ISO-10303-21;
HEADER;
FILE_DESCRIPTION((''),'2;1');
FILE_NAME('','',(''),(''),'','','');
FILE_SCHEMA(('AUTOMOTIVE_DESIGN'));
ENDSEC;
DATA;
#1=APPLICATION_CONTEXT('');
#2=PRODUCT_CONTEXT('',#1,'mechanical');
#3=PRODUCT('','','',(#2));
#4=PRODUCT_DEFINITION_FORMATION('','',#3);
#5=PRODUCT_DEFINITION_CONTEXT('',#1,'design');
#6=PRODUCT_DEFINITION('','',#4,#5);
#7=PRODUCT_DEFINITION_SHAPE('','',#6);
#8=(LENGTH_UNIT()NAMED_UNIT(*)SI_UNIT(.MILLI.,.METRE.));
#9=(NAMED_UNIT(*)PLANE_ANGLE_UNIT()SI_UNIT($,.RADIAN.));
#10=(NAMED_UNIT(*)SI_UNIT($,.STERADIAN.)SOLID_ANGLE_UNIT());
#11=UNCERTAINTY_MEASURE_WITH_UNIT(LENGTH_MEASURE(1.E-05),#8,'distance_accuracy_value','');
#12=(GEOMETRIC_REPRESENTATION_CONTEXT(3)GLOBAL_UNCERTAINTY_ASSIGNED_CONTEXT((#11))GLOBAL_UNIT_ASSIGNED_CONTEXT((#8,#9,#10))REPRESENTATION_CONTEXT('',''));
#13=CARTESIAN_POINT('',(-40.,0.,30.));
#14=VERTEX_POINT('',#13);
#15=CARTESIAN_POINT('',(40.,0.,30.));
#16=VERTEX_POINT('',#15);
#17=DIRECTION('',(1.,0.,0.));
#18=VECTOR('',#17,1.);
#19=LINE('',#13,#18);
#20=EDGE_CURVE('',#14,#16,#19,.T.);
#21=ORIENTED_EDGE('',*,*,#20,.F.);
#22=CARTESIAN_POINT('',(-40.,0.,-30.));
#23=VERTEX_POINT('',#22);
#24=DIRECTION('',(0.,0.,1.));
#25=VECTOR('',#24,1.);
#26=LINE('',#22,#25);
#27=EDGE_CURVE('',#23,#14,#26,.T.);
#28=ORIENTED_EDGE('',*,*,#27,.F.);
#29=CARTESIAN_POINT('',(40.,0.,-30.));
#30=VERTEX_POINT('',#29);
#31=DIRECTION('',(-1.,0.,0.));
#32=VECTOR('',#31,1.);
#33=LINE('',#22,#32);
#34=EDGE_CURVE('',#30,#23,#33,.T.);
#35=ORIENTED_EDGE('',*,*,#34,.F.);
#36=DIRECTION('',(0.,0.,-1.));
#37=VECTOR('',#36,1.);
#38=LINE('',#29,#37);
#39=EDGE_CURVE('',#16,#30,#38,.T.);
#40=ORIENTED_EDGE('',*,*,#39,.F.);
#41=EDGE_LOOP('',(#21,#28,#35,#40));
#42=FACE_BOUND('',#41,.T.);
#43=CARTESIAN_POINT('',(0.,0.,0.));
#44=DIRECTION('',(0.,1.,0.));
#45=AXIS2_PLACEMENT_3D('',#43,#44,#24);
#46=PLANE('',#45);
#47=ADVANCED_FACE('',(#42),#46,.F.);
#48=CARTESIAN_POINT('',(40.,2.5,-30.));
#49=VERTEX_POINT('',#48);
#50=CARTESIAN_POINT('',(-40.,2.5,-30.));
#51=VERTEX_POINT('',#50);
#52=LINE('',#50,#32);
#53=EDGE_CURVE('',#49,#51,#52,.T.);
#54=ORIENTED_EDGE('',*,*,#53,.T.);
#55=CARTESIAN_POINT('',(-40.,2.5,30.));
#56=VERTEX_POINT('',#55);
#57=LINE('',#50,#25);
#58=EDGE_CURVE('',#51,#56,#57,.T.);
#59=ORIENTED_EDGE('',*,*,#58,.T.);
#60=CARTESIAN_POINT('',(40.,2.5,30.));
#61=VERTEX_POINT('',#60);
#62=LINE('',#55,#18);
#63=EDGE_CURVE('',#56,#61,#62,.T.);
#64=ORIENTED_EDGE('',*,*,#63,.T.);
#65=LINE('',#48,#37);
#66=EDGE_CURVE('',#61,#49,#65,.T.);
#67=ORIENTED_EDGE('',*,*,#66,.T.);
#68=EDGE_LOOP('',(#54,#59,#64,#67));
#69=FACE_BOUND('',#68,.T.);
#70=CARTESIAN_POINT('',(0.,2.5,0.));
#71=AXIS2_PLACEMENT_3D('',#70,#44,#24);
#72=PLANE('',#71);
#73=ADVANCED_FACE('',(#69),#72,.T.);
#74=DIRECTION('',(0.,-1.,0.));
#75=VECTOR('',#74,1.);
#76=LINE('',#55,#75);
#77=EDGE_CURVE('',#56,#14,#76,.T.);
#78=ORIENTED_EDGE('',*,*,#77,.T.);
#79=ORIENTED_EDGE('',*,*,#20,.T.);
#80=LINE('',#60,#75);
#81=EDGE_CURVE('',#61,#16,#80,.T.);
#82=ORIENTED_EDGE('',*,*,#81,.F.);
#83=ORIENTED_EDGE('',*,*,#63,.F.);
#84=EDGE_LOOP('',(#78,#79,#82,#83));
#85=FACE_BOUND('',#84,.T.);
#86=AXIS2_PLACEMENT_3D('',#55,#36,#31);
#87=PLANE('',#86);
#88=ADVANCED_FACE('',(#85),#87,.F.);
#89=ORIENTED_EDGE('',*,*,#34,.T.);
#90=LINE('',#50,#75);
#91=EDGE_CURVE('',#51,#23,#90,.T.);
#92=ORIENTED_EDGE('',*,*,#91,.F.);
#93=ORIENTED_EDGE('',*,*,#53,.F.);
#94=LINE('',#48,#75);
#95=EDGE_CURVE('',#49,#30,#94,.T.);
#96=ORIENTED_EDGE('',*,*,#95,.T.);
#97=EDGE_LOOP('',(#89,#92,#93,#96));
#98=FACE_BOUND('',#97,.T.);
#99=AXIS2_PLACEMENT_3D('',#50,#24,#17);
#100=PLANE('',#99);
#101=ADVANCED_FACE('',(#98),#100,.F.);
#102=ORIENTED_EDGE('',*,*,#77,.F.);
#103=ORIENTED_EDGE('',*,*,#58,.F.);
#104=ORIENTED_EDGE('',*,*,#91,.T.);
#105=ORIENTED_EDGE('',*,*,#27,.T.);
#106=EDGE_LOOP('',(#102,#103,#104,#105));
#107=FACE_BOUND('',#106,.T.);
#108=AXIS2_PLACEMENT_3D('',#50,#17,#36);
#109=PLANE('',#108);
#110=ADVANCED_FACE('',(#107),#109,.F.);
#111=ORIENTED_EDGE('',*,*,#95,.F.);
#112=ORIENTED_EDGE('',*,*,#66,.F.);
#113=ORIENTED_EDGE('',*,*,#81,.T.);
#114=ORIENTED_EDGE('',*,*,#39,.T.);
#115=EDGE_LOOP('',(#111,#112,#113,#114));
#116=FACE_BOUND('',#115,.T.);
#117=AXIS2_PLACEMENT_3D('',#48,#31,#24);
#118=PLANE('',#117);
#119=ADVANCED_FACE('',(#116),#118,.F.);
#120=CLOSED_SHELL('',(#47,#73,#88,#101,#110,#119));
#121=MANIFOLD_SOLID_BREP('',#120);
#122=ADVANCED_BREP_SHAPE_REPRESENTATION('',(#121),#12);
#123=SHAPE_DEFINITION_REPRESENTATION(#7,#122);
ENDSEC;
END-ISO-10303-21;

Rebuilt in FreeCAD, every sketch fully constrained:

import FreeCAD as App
import Part
import Sketcher

V = App.Vector
Q = App.Units.Quantity


def add_polygon(sketch, points):
    """Adds a closed chain of lines whose ends are joined by coincident constraints."""
    first, n = sketch.GeometryCount, len(points)
    for a, b in zip(points, points[1:] + points[:1]):
        sketch.addGeometry(Part.LineSegment(App.Vector(*a, 0), App.Vector(*b, 0)), False)
    for i in range(n):
        sketch.addConstraint(Sketcher.Constraint("Coincident", first + i, 2, first + (i + 1) % n, 1))

doc = App.newDocument("Part")
params = doc.addObject("Spreadsheet::Sheet", "Params")
for row, (alias, value) in enumerate([
    ("sketch1_width", "80 mm"),
    ("sketch1_height", "60 mm"),
    ("pad1_length", "2.5 mm"),
], start=1):
    params.set(f"A{row}", alias)
    params.set(f"B{row}", "=" + value)
    params.setAlias(f"B{row}", alias)

body = doc.addObject("PartDesign::Body", "Body")

sketch1 = body.newObject("Sketcher::SketchObject", "Sketch")
sketch1.AttachmentSupport = (doc.getObject("XZ_Plane"), [""])
sketch1.MapMode = "FlatFace"
add_polygon(sketch1, [(-40, -30), (-40, 30), (40, 30), (40, -30)])
sketch1.addConstraint(Sketcher.Constraint("Vertical", 0))
sketch1.addConstraint(Sketcher.Constraint("Horizontal", 1))
sketch1.addConstraint(Sketcher.Constraint("Vertical", 2))
sketch1.addConstraint(Sketcher.Constraint("Horizontal", 3))
sketch1.addConstraint(Sketcher.Constraint("Symmetric", 0, 2, 2, 2, -1, 1))
sketch1.addConstraint(Sketcher.Constraint("DistanceX", 1, 1, 1, 2, Q("80 mm")))
sketch1.addConstraint(Sketcher.Constraint("DistanceY", 0, 1, 0, 2, Q("60 mm")))
sketch1.setExpression("Constraints[9]", "Params.sketch1_width")
sketch1.setExpression("Constraints[10]", "Params.sketch1_height")
pad1 = body.newObject("PartDesign::Pad", "Pad")
pad1.Profile = sketch1
pad1.setExpression("Length", "Params.pad1_length")
pad1.Reversed = True

doc.recompute()
